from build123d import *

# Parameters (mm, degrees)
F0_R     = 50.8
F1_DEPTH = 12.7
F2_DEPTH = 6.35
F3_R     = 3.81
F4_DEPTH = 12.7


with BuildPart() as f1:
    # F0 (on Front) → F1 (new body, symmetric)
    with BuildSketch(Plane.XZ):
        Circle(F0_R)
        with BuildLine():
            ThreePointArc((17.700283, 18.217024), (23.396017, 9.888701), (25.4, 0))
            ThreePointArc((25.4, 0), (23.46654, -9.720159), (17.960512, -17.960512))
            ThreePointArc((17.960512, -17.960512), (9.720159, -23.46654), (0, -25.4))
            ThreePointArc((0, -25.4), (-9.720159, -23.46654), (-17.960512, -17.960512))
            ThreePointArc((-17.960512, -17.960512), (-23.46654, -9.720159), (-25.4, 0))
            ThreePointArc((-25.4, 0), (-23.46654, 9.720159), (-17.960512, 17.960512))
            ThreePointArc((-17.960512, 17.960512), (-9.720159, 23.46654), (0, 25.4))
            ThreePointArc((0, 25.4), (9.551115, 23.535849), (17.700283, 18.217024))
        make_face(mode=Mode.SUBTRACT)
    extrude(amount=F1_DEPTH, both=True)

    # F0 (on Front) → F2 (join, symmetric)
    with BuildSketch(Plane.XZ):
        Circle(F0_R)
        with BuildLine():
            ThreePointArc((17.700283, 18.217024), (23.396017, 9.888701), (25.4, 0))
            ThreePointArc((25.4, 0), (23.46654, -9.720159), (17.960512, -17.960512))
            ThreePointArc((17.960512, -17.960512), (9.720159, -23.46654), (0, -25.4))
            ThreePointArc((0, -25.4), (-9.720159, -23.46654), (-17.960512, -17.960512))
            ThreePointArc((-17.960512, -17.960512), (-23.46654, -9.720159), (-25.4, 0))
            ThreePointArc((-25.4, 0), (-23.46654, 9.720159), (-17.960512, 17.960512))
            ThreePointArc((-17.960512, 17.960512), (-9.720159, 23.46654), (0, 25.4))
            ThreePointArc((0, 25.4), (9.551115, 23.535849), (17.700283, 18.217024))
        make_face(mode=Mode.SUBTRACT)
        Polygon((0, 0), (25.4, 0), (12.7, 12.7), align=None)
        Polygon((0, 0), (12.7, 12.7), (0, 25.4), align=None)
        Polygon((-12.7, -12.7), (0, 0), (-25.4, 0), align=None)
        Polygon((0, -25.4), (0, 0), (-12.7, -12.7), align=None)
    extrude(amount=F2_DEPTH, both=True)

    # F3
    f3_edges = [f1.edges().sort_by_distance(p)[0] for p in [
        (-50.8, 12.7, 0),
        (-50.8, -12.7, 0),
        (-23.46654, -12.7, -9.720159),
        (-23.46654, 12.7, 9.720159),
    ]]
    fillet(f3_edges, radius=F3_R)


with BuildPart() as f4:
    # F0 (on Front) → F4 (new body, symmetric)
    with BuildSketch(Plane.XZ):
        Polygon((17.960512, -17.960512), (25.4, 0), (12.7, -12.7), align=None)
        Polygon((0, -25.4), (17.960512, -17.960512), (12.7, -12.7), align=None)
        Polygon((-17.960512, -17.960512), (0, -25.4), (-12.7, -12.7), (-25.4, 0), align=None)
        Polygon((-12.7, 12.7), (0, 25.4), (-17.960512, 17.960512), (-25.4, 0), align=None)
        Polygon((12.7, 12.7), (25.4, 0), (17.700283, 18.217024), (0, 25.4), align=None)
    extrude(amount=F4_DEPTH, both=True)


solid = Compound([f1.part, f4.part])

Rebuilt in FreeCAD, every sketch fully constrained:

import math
import FreeCAD as App
import Part
import Sketcher
from FreeCAD import Vector
Q = App.Units.Quantity


def edges_at(feature, points):
    """Names of the edges that pass closest to the given points."""
    edges = feature.Shape.Edges
    near = lambda p: min(range(len(edges)), key=lambda i: edges[i].distToShape(Part.Vertex(*p))[0])
    return sorted({f"Edge{near(p) + 1}" for p in points})

doc = App.newDocument("Part")
body = doc.addObject("PartDesign::Body", "Body")
body.AllowCompound = True

# Sketch on XZ plane
sketch1 = doc.addObject("Sketcher::SketchObject", "Sketch")
body.addObject(sketch1)
sketch1.AttachmentSupport = (doc.XZ_Plane, [""])
sketch1.MapMode = "FlatFace"
sketch1.addGeometry([
    Part.Circle(Vector(0, 0, 0), Vector(0, 0, 1), 51),  # 0
    Part.ArcOfCircle(Part.Circle(Vector(0, 0, 0), Vector(0, 0, 1), 25), math.radians(46), math.radians(90)),  # 1
    Part.ArcOfCircle(Part.Circle(Vector(0, 0, 0), Vector(0, 0, 1), 25), math.radians(0), math.radians(46)),  # 2
    Part.ArcOfCircle(Part.Circle(Vector(0, 0, 0), Vector(0, 0, 1), 25), math.radians(-45), math.radians(0)),  # 3
    Part.ArcOfCircle(Part.Circle(Vector(0, 0, 0), Vector(0, 0, 1), 25), math.radians(-90), math.radians(-45)),  # 4
    Part.ArcOfCircle(Part.Circle(Vector(0, 0, 0), Vector(0, 0, 1), 25), math.radians(-135), math.radians(-90)),  # 5
    Part.ArcOfCircle(Part.Circle(Vector(0, 0, 0), Vector(0, 0, 1), 25), math.radians(-180), math.radians(-135)),  # 6
    Part.ArcOfCircle(Part.Circle(Vector(0, 0, 0), Vector(0, 0, 1), 25), math.radians(135), math.radians(180)),  # 7
    Part.ArcOfCircle(Part.Circle(Vector(0, 0, 0), Vector(0, 0, 1), 25), math.radians(90), math.radians(135)),  # 8
], False)
sketch1.addConstraint([
    Sketcher.Constraint("Tangent", 1, 1, 2, 2),
    Sketcher.Constraint("Tangent", 2, 1, 3, 2),
    Sketcher.Constraint("Tangent", 3, 1, 4, 2),
    Sketcher.Constraint("Tangent", 4, 1, 5, 2),
    Sketcher.Constraint("Tangent", 5, 1, 6, 2),
    Sketcher.Constraint("Tangent", 6, 1, 7, 2),
    Sketcher.Constraint("Tangent", 7, 1, 8, 2),
    Sketcher.Constraint("Tangent", 8, 1, 1, 2),
    Sketcher.Constraint("Coincident", 0, 3, -1, 1),
    Sketcher.Constraint("Coincident", 1, 3, -1, 1),
    Sketcher.Constraint("Coincident", 3, 3, -1, 1),
    Sketcher.Constraint("Coincident", 5, 3, -1, 1),
    Sketcher.Constraint("Equal", 5, 6),
    Sketcher.Constraint("PointOnObject", 2, 1, -1),
    Sketcher.Constraint("PointOnObject", 4, 1, -2),
    Sketcher.Constraint("PointOnObject", 6, 1, -1),
    Sketcher.Constraint("PointOnObject", 8, 1, -2),
    Sketcher.Constraint("Horizontal", 3, 1, 5, 1),
    Sketcher.Constraint("Vertical", 5, 1, 7, 1),
    Sketcher.Constraint("Diameter", 0, Q("4 in")),
    Sketcher.Constraint("Radius", 1, Q("1 in")),
    Sketcher.Constraint("DistanceY", 2, 3, 1, 1, Q("18.217022 mm")),
    Sketcher.Constraint("DistanceX", 7, 3, 3, 1, Q("17.960512 mm")),
])
pad1 = doc.addObject("PartDesign::Pad", "Pad")
body.addObject(pad1)
pad1.Profile = sketch1
pad1.Length = Q("1 in")
pad1.Midplane = True

# Sketch on XZ plane
sketch2 = doc.addObject("Sketcher::SketchObject", "Sketch001")
body.addObject(sketch2)
sketch2.AttachmentSupport = (doc.XZ_Plane, [""])
sketch2.MapMode = "FlatFace"
sketch2.addGeometry([
    Part.Circle(Vector(0, 0, 0), Vector(0, 0, 1), 51),  # 0
    Part.ArcOfCircle(Part.Circle(Vector(0, 0, 0), Vector(0, 0, 1), 25), math.radians(46), math.radians(90)),  # 1
    Part.ArcOfCircle(Part.Circle(Vector(0, 0, 0), Vector(0, 0, 1), 25), math.radians(0), math.radians(46)),  # 2
    Part.ArcOfCircle(Part.Circle(Vector(0, 0, 0), Vector(0, 0, 1), 25), math.radians(-45), math.radians(0)),  # 3
    Part.ArcOfCircle(Part.Circle(Vector(0, 0, 0), Vector(0, 0, 1), 25), math.radians(-90), math.radians(-45)),  # 4
    Part.ArcOfCircle(Part.Circle(Vector(0, 0, 0), Vector(0, 0, 1), 25), math.radians(-135), math.radians(-90)),  # 5
    Part.ArcOfCircle(Part.Circle(Vector(0, 0, 0), Vector(0, 0, 1), 25), math.radians(-180), math.radians(-135)),  # 6
    Part.ArcOfCircle(Part.Circle(Vector(0, 0, 0), Vector(0, 0, 1), 25), math.radians(135), math.radians(180)),  # 7
    Part.ArcOfCircle(Part.Circle(Vector(0, 0, 0), Vector(0, 0, 1), 25), math.radians(90), math.radians(135)),  # 8
    Part.LineSegment(Vector(0, 0, 0), Vector(25, 0, 0)),  # 9
    Part.LineSegment(Vector(25, 0, 0), Vector(0, 25, 0)),  # 10
    Part.LineSegment(Vector(0, 25, 0), Vector(0, 0, 0)),  # 11
    Part.LineSegment(Vector(0, 0, 0), Vector(-25, 0, 0)),  # 12
    Part.LineSegment(Vector(-25, 0, 0), Vector(0, -25, 0)),  # 13
    Part.LineSegment(Vector(0, -25, 0), Vector(0, 0, 0)),  # 14
], False)
sketch2.addConstraint([
    Sketcher.Constraint("Tangent", 1, 1, 2, 2),
    Sketcher.Constraint("Tangent", 2, 1, 3, 2),
    Sketcher.Constraint("Tangent", 3, 1, 4, 2),
    Sketcher.Constraint("Tangent", 4, 1, 5, 2),
    Sketcher.Constraint("Tangent", 5, 1, 6, 2),
    Sketcher.Constraint("Tangent", 6, 1, 7, 2),
    Sketcher.Constraint("Tangent", 7, 1, 8, 2),
    Sketcher.Constraint("Tangent", 8, 1, 1, 2),
    Sketcher.Constraint("Coincident", 9, 2, 10, 1),
    Sketcher.Constraint("Coincident", 10, 2, 11, 1),
    Sketcher.Constraint("Coincident", 11, 2, 9, 1),
    Sketcher.Constraint("Coincident", 12, 2, 13, 1),
    Sketcher.Constraint("Coincident", 13, 2, 14, 1),
    Sketcher.Constraint("Coincident", 14, 2, 12, 1),
    Sketcher.Constraint("Horizontal", 9),
    Sketcher.Constraint("Vertical", 11),
    Sketcher.Constraint("Horizontal", 12),
    Sketcher.Constraint("Vertical", 14),
    Sketcher.Constraint("Coincident", 0, 3, -1, 1),
    Sketcher.Constraint("Coincident", 1, 3, -1, 1),
    Sketcher.Constraint("Coincident", 3, 3, -1, 1),
    Sketcher.Constraint("Coincident", 5, 3, -1, 1),
    Sketcher.Constraint("Coincident", 11, 2, -1, 1),
    Sketcher.Constraint("Coincident", 14, 2, -1, 1),
    Sketcher.Constraint("Coincident", 9, 2, 2, 1),
    Sketcher.Constraint("Coincident", 10, 2, 8, 1),
    Sketcher.Constraint("Coincident", 12, 2, 6, 1),
    Sketcher.Constraint("Coincident", 13, 2, 4, 1),
    Sketcher.Constraint("Equal", 5, 6),
    Sketcher.Constraint("Horizontal", 3, 1, 5, 1),
    Sketcher.Constraint("Vertical", 5, 1, 7, 1),
    Sketcher.Constraint("Diameter", 0, Q("4 in")),
    Sketcher.Constraint("Radius", 1, Q("1 in")),
    Sketcher.Constraint("DistanceY", 2, 3, 1, 1, Q("18.217022 mm")),
    Sketcher.Constraint("DistanceX", 7, 3, 3, 1, Q("17.960512 mm")),
])
pad2 = doc.addObject("PartDesign::Pad", "Pad001")
body.addObject(pad2)
pad2.Profile = sketch2
pad2.Length = Q("0.5 in")
pad2.Midplane = True
doc.recompute()

fillet = doc.addObject("PartDesign::Fillet", "Fillet")
body.addObject(fillet)
fillet.Base = (pad2, edges_at(pad2, [
    (-50.8, 12.7, 0),
    (-50.8, -12.7, 0),
    (-23.467, -12.7, -9.72),
    (-23.467, 12.7, 9.72),
]))
fillet.Radius = Q("0.15 in")
body2 = doc.addObject("PartDesign::Body", "Body001")
body2.AllowCompound = True

# Sketch on XZ plane
sketch3 = doc.addObject("Sketcher::SketchObject", "Sketch002")
body2.addObject(sketch3)
sketch3.AttachmentSupport = (doc.getObject("XZ_Plane001"), [""])
sketch3.MapMode = "FlatFace"
sketch3.addGeometry([
    Part.LineSegment(Vector(18, -18, 0), Vector(25, 0, 0)),  # 0
    Part.LineSegment(Vector(25, 0, 0), Vector(0, -25, 0)),  # 1
    Part.LineSegment(Vector(0, -25, 0), Vector(18, -18, 0)),  # 2
    Part.LineSegment(Vector(-18, -18, 0), Vector(0, -25, 0)),  # 3
    Part.LineSegment(Vector(0, -25, 0), Vector(-25, 0, 0)),  # 4
    Part.LineSegment(Vector(-25, 0, 0), Vector(-18, -18, 0)),  # 5
    Part.LineSegment(Vector(0, 25, 0), Vector(-18, 18, 0)),  # 6
    Part.LineSegment(Vector(-18, 18, 0), Vector(-25, 0, 0)),  # 7
    Part.LineSegment(Vector(-25, 0, 0), Vector(0, 25, 0)),  # 8
    Part.LineSegment(Vector(25, 0, 0), Vector(18, 18, 0)),  # 9
    Part.LineSegment(Vector(18, 18, 0), Vector(0, 25, 0)),  # 10
    Part.LineSegment(Vector(0, 25, 0), Vector(25, 0, 0)),  # 11
], False)
sketch3.addConstraint([
    Sketcher.Constraint("Coincident", 0, 2, 1, 1),
    Sketcher.Constraint("Coincident", 1, 2, 2, 1),
    Sketcher.Constraint("Coincident", 2, 2, 0, 1),
    Sketcher.Constraint("Coincident", 3, 2, 4, 1),
    Sketcher.Constraint("Coincident", 4, 2, 5, 1),
    Sketcher.Constraint("Coincident", 5, 2, 3, 1),
    Sketcher.Constraint("Coincident", 6, 2, 7, 1),
    Sketcher.Constraint("Coincident", 7, 2, 8, 1),
    Sketcher.Constraint("Coincident", 8, 2, 6, 1),
    Sketcher.Constraint("Coincident", 9, 2, 10, 1),
    Sketcher.Constraint("Coincident", 10, 2, 11, 1),
    Sketcher.Constraint("Coincident", 11, 2, 9, 1),
    Sketcher.Constraint("Coincident", 3, 2, 1, 2),
    Sketcher.Constraint("Coincident", 7, 2, 4, 2),
    Sketcher.Constraint("Coincident", 10, 2, 8, 2),
    Sketcher.Constraint("Coincident", 11, 2, 0, 2),
    Sketcher.Constraint("Symmetric", 0, 2, 4, 2, -1, 1),
    Sketcher.Constraint("Symmetric", 2, 2, 6, 2, -1, 1),
    Sketcher.Constraint("Symmetric", 1, 2, 8, 2, -1, 1),
    Sketcher.Constraint("Symmetric", 2, 2, 5, 2, -2),
    Sketcher.Constraint("PointOnObject", 0, 2, -1),
    Sketcher.Constraint("PointOnObject", 1, 2, -2),
    Sketcher.Constraint("Perpendicular", 0, 3),
    Sketcher.Constraint("Perpendicular", 1, 4),
    Sketcher.Constraint("DistanceX", -1, 1, 0, 2, Q("1 in")),
    Sketcher.Constraint("Angle", 0, Q("67.499999 deg")),
    Sketcher.Constraint("Distance", 9, Q("19.777401 mm")),
    Sketcher.Constraint("Distance", 10, Q("19.102229 mm")),
])
pad3 = doc.addObject("PartDesign::Pad", "Pad002")
body2.addObject(pad3)
pad3.Profile = sketch3
pad3.Length = Q("1 in")
pad3.Midplane = True

doc.recompute()
